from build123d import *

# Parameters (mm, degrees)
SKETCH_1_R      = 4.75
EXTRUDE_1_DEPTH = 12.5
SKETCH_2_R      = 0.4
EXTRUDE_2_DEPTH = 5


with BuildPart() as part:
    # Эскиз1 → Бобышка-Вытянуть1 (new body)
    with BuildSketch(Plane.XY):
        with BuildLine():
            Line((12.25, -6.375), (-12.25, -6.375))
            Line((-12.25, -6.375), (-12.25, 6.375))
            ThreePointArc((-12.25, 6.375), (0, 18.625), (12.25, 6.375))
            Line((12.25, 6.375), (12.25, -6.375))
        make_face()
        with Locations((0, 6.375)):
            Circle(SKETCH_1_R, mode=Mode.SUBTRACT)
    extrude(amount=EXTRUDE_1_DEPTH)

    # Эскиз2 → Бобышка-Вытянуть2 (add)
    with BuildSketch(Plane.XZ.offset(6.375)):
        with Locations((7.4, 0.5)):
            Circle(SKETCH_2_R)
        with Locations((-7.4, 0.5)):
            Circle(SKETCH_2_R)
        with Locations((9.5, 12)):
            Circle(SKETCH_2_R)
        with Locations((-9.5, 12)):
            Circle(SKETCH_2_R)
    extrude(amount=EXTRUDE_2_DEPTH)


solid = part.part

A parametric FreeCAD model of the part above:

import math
import FreeCAD as App
import Part
import Sketcher
from FreeCAD import Vector

doc = App.newDocument("Part")
params = doc.addObject("Spreadsheet::Sheet", "Params")
for row, (alias, value) in enumerate([
    ("sketch1_diameter", "9.5 mm"),
    ("sketch1_radius", "12.25 mm"),
    ("sketch1_height", "12.75 mm"),
    ("pad1_length", "12.5 mm"),
    ("sketch2_diameter", "0.8 mm"),
    ("pad2_length", "5 mm"),
], start=1):
    params.set(f"A{row}", alias)
    params.set(f"B{row}", "=" + value)
    params.setAlias(f"B{row}", alias)

body = doc.addObject("PartDesign::Body", "Body")

# Sketch on XY plane
sketch1 = doc.addObject("Sketcher::SketchObject", "Sketch")
body.addObject(sketch1)
sketch1.AttachmentSupport = (doc.XY_Plane, [""])
sketch1.MapMode = "FlatFace"
sketch1.addGeometry(Part.LineSegment(Vector(-12.2, -6.4, 0), Vector(12.2, -6.4, 0)), False)
sketch1.addGeometry(Part.LineSegment(Vector(12.2, -6.4, 0), Vector(12.2, 6.4, 0)), False)
sketch1.addGeometry(Part.ArcOfCircle(Part.Circle(Vector(0, 6.4, 0), Vector(0, 0, 1), 12.2), math.radians(0), math.radians(180)), False)
sketch1.addGeometry(Part.LineSegment(Vector(-12.2, 6.4, 0), Vector(-12.2, -6.4, 0)), False)
sketch1.addGeometry(Part.Circle(Vector(0, 6.4, 0), Vector(0, 0, 1), 4.8), False)
sketch1.addConstraint(Sketcher.Constraint("Coincident", 0, 2, 1, 1))
sketch1.addConstraint(Sketcher.Constraint("Tangent", 1, 2, 2, 1))
sketch1.addConstraint(Sketcher.Constraint("Tangent", 2, 2, 3, 1))
sketch1.addConstraint(Sketcher.Constraint("Coincident", 3, 2, 0, 1))
sketch1.addConstraint(Sketcher.Constraint("Horizontal", 0))
sketch1.addConstraint(Sketcher.Constraint("Vertical", 1))
sketch1.addConstraint(Sketcher.Constraint("Vertical", 3))
sketch1.addConstraint(Sketcher.Constraint("Coincident", 4, 3, 2, 3))
sketch1.addConstraint(Sketcher.Constraint("Symmetric", 0, 2, 2, 2, -1, 1))
sketch1.addConstraint(Sketcher.Constraint("Diameter", 4, 9.5))
sketch1.addConstraint(Sketcher.Constraint("Radius", 2, 12.25))
sketch1.addConstraint(Sketcher.Constraint("DistanceY", 1, 1, 1, 2, 12.75))
sketch1.setExpression("Constraints[9]", "Params.sketch1_diameter")
sketch1.setExpression("Constraints[10]", "Params.sketch1_radius")
sketch1.setExpression("Constraints[11]", "Params.sketch1_height")
pad1 = doc.addObject("PartDesign::Pad", "Pad")
body.addObject(pad1)
pad1.Profile = sketch1
pad1.setExpression("Length", "Params.pad1_length")

# Sketch on XZ plane
sketch2 = doc.addObject("Sketcher::SketchObject", "Sketch001")
body.addObject(sketch2)
sketch2.AttachmentSupport = (doc.XZ_Plane, [""])
sketch2.MapMode = "FlatFace"
sketch2.AttachmentOffset = App.Placement(Vector(0, 0, 6.375), App.Rotation())
sketch2.addGeometry(Part.Circle(Vector(7.4, 0.5, 0), Vector(0, 0, 1), 0.4), False)
sketch2.addGeometry(Part.Circle(Vector(-7.4, 0.5, 0), Vector(0, 0, 1), 0.4), False)
sketch2.addGeometry(Part.Circle(Vector(9.5, 12, 0), Vector(0, 0, 1), 0.4), False)
sketch2.addGeometry(Part.Circle(Vector(-9.5, 12, 0), Vector(0, 0, 1), 0.4), False)
sketch2.addConstraint(Sketcher.Constraint("Equal", 0, 1))
sketch2.addConstraint(Sketcher.Constraint("Equal", 1, 2))
sketch2.addConstraint(Sketcher.Constraint("Equal", 2, 3))
sketch2.addConstraint(Sketcher.Constraint("Symmetric", 0, 3, 1, 3, -2))
sketch2.addConstraint(Sketcher.Constraint("Symmetric", 2, 3, 3, 3, -2))
sketch2.addConstraint(Sketcher.Constraint("Diameter", 0, 0.8))
sketch2.addConstraint(Sketcher.Constraint("DistanceY", -1, 1, 2, 3, 12.0))
sketch2.addConstraint(Sketcher.Constraint("DistanceX", 3, 3, 2, 3, 19.0))
sketch2.addConstraint(Sketcher.Constraint("DistanceX", -1, 1, 0, 3, 7.4))
sketch2.addConstraint(Sketcher.Constraint("DistanceY", -1, 1, 0, 3, 0.5))
sketch2.setExpression("Constraints[5]", "Params.sketch2_diameter")
pad2 = doc.addObject("PartDesign::Pad", "Pad001")
body.addObject(pad2)
pad2.Profile = sketch2
pad2.setExpression("Length", "Params.pad2_length")

doc.recompute()
